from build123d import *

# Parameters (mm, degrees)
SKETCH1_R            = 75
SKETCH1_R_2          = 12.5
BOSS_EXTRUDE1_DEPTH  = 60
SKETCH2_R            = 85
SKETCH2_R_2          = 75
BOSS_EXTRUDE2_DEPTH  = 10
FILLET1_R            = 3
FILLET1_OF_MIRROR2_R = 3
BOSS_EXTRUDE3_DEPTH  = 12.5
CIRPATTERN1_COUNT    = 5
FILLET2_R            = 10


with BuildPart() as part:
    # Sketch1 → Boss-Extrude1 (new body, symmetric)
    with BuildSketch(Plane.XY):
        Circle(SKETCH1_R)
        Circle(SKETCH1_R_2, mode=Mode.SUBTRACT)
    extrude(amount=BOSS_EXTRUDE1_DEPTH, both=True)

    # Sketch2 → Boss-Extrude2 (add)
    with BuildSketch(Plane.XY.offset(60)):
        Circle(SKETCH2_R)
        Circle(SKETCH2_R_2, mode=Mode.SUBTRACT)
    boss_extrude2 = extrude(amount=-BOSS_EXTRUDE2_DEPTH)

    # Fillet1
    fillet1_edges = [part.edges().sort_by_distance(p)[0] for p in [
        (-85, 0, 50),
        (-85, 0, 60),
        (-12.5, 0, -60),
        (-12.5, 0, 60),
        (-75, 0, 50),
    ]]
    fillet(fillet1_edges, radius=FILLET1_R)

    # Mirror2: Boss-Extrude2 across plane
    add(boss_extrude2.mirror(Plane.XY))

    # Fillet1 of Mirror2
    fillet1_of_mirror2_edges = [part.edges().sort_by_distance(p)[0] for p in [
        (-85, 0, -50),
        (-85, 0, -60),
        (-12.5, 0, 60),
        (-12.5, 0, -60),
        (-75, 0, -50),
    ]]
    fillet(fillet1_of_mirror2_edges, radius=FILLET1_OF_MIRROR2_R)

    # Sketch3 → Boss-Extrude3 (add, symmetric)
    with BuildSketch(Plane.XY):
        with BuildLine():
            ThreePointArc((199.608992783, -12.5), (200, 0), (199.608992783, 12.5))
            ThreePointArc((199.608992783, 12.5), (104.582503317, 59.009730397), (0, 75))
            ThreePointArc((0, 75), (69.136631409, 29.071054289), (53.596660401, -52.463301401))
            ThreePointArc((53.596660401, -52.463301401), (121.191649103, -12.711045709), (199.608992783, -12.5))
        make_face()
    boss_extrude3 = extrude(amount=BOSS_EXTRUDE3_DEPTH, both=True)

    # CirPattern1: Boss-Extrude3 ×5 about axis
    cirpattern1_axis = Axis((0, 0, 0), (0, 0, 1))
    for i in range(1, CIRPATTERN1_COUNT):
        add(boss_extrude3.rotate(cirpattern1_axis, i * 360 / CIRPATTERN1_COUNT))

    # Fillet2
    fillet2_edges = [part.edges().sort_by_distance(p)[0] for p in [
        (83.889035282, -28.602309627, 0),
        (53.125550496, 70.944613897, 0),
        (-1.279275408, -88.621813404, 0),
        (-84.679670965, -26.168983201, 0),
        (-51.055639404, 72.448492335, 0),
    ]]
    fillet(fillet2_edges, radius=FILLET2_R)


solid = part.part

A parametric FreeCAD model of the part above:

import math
import FreeCAD as App
import Part
import Sketcher
from FreeCAD import Vector
Q = App.Units.Quantity


def edges_at(feature, points):
    """Names of the edges that pass closest to the given points."""
    edges = feature.Shape.Edges
    near = lambda p: min(range(len(edges)), key=lambda i: edges[i].distToShape(Part.Vertex(*p))[0])
    return sorted({f"Edge{near(p) + 1}" for p in points})

doc = App.newDocument("Part")
body = doc.addObject("PartDesign::Body", "Body")

# Sketch on XY plane
sketch1 = doc.addObject("Sketcher::SketchObject", "Sketch")
body.addObject(sketch1)
sketch1.AttachmentSupport = (doc.XY_Plane, [""])
sketch1.MapMode = "FlatFace"
sketch1.addGeometry([
    Part.Circle(Vector(0, 0, 0), Vector(0, 0, 1), 75),
    Part.Circle(Vector(0, 0, 0), Vector(0, 0, 1), 12),
], False)
sketch1.addConstraint([
    Sketcher.Constraint("Coincident", 0, 3, -1, 1),
    Sketcher.Constraint("Coincident", 1, 3, -1, 1),
    Sketcher.Constraint("Diameter", 0, Q("150 mm")),
    Sketcher.Constraint("Diameter", 1, Q("25 mm")),
])
pad1 = doc.addObject("PartDesign::Pad", "Pad")
body.addObject(pad1)
pad1.Profile = sketch1
pad1.Length = 120
pad1.Midplane = True

# Sketch on XY plane
sketch2 = doc.addObject("Sketcher::SketchObject", "Sketch001")
body.addObject(sketch2)
sketch2.AttachmentSupport = (doc.XY_Plane, [""])
sketch2.MapMode = "FlatFace"
sketch2.AttachmentOffset = App.Placement(Vector(0, 0, 60), App.Rotation())
sketch2.addGeometry([
    Part.Circle(Vector(0, 0, 0), Vector(0, 0, 1), 85),
    Part.Circle(Vector(0, 0, 0), Vector(0, 0, 1), 75),
], False)
sketch2.addConstraint([
    Sketcher.Constraint("Coincident", 0, 3, -1, 1),
    Sketcher.Constraint("Coincident", 1, 3, -1, 1),
    Sketcher.Constraint("Diameter", 0, Q("170 mm")),
    Sketcher.Constraint("Diameter", 1, Q("150 mm")),
])
pad2 = doc.addObject("PartDesign::Pad", "Pad001")
body.addObject(pad2)
pad2.Profile = sketch2
pad2.Length = 10
pad2.Reversed = True
doc.recompute()

fillet = doc.addObject("PartDesign::Fillet", "Fillet")
body.addObject(fillet)
fillet.Base = (pad2, edges_at(pad2, [
    (-85, 0, 50),
    (-85, 0, 60),
    (-12.5, 0, -60),
    (-12.5, 0, 60),
    (-75, 0, 50),
]))
fillet.Radius = 3
doc.recompute()

mirrored = doc.addObject("PartDesign::Mirrored", "Mirrored")
body.addObject(mirrored)
mirrored.Originals = [pad2]
mirrored.MirrorPlane = (doc.XY_Plane, [""])
body.Tip = mirrored
doc.recompute()

fillet2 = doc.addObject("PartDesign::Fillet", "Fillet001")
body.addObject(fillet2)
fillet2.Base = (mirrored, edges_at(mirrored, [
    (-85, 0, -50),
    (-85, 0, -60),
    (-12.5, 0, 57),
    (-15.5, 0, -60),
    (-75, 0, -50),
]))
fillet2.Radius = 3

# Sketch on XY plane
sketch3 = doc.addObject("Sketcher::SketchObject", "Sketch002")
body.addObject(sketch3)
sketch3.AttachmentSupport = (doc.XY_Plane, [""])
sketch3.MapMode = "FlatFace"
sketch3.addGeometry([
    Part.ArcOfCircle(Part.Circle(Vector(0, 0, 0), Vector(0, 0, 1), 200), math.radians(-3.58), math.radians(3.58)),
    Part.ArcOfCircle(Part.Circle(Vector(0, -275, 0), Vector(0, 0, 1), 350), math.radians(55), math.radians(90)),
    Part.ArcOfCircle(Part.Circle(Vector(0, 0, 0), Vector(0, 0, 1), 75), math.radians(-44), math.radians(90)),
    Part.ArcOfCircle(Part.Circle(Vector(161, -157, 0), Vector(0, 0, 1), 150), math.radians(75), math.radians(136)),
], False)
sketch3.addConstraint([
    Sketcher.Constraint("Coincident", 0, 2, 1, 1),
    Sketcher.Constraint("Tangent", 1, 2, 2, 2),
    Sketcher.Constraint("Tangent", 2, 1, 3, 2),
    Sketcher.Constraint("Coincident", 3, 1, 0, 1),
    Sketcher.Constraint("Coincident", 0, 3, -1, 1),
    Sketcher.Constraint("Coincident", 2, 3, -1, 1),
    Sketcher.Constraint("PointOnObject", 1, 3, -2),
    Sketcher.Constraint("Radius", 0, Q("200 mm")),
    Sketcher.Constraint("Radius", 1, Q("350 mm")),
    Sketcher.Constraint("Radius", 2, Q("75 mm")),
    Sketcher.Constraint("Radius", 3, Q("150 mm")),
    Sketcher.Constraint("DistanceY", 3, 1, 0, 2, Q("25 mm")),
])
pad3 = doc.addObject("PartDesign::Pad", "Pad002")
body.addObject(pad3)
pad3.Profile = sketch3
pad3.Length = 25
pad3.Midplane = True
doc.recompute()

polarpattern = doc.addObject("PartDesign::PolarPattern", "PolarPattern")
body.addObject(polarpattern)
polarpattern.Originals = [pad3]
polarpattern.Axis = (doc.Z_Axis, [""])
polarpattern.Angle = 360
polarpattern.Occurrences = 5
body.Tip = polarpattern
doc.recompute()

fillet3 = doc.addObject("PartDesign::Fillet", "Fillet002")
body.addObject(fillet3)
fillet3.Base = (polarpattern, edges_at(polarpattern, [
    (83.889, -28.602, 0),
    (53.126, 70.945, 0),
    (-1.279, -88.622, 0),
    (-84.68, -26.169, 0),
    (-51.056, 72.448, 0),
]))
fillet3.Radius = 10

doc.recompute()
